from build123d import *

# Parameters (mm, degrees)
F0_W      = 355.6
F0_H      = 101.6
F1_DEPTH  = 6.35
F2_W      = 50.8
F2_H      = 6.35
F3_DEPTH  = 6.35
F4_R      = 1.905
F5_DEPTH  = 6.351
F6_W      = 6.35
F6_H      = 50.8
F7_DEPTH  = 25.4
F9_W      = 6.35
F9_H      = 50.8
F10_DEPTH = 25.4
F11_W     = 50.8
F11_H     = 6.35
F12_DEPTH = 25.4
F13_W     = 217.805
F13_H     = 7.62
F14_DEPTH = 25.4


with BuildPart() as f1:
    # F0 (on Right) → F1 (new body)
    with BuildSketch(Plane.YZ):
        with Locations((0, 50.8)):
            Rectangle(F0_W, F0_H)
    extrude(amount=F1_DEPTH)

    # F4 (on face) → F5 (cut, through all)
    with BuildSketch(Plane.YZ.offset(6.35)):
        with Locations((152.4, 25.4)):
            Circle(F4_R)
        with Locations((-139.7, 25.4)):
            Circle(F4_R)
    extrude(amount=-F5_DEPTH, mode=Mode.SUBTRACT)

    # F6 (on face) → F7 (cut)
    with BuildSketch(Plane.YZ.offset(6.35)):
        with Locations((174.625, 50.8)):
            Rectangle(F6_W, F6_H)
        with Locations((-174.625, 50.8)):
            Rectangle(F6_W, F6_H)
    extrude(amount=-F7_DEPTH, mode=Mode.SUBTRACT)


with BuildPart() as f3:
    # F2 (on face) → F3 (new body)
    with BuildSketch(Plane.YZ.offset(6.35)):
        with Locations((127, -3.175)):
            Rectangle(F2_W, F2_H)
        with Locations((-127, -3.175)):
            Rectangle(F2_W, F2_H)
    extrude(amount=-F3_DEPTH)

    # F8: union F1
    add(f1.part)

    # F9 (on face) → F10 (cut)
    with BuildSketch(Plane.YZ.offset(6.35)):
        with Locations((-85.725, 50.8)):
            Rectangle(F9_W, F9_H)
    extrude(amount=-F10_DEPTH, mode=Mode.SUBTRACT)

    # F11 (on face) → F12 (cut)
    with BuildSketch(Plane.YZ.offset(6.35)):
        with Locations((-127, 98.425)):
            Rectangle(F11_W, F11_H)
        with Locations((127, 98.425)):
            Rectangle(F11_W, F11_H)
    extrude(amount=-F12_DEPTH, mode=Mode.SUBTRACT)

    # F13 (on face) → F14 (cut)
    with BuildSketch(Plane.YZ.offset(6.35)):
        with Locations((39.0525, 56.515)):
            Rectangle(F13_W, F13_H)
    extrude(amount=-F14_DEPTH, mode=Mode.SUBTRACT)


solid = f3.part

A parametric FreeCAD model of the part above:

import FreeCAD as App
import Part
import Sketcher
Q = App.Units.Quantity


def add_polygon(sketch, points):
    """Adds a closed chain of lines whose ends are joined by coincident constraints."""
    first, n = sketch.GeometryCount, len(points)
    for a, b in zip(points, points[1:] + points[:1]):
        sketch.addGeometry(Part.LineSegment(App.Vector(*a, 0), App.Vector(*b, 0)), False)
    for i in range(n):
        sketch.addConstraint(Sketcher.Constraint("Coincident", first + i, 2, first + (i + 1) % n, 1))

doc = App.newDocument("Part")
params = doc.addObject("Spreadsheet::Sheet", "Params")
for row, (alias, value) in enumerate([
    ("sketch1_width", "14 in"),
    ("sketch1_height", "4 in"),
    ("pad1_length", "0.25 in"),
    ("sketch2_diameter", "0.15 in"),
    ("sketch3_height", "2 in"),
    ("sketch3_width", "0.25 in"),
    ("pocket2_length", "1 in"),
    ("sketch4_width", "2 in"),
    ("sketch4_height", "0.25 in"),
    ("pad2_length", "0.25 in"),
    ("sketch5_height", "2 in"),
    ("sketch5_width", "0.25 in"),
    ("pocket3_length", "1 in"),
    ("sketch6_width", "2 in"),
    ("sketch6_height", "0.25 in"),
    ("pocket4_length", "1 in"),
    ("sketch7_height", "0.3 in"),
    ("sketch7_width", "8.575 in"),
    ("pocket5_length", "1 in"),
], start=1):
    params.set(f"A{row}", alias)
    params.set(f"B{row}", "=" + value)
    params.setAlias(f"B{row}", alias)

body = doc.addObject("PartDesign::Body", "Body")

sketch1 = doc.addObject("Sketcher::SketchObject", "Sketch")
body.addObject(sketch1)
sketch1.AttachmentSupport = (doc.YZ_Plane, [""])
sketch1.MapMode = "FlatFace"
add_polygon(sketch1, [(-178, 102), (-178, 0), (178, 0), (178, 102)])
sketch1.addConstraint(Sketcher.Constraint("Vertical", 0))
sketch1.addConstraint(Sketcher.Constraint("Horizontal", 1))
sketch1.addConstraint(Sketcher.Constraint("Vertical", 2))
sketch1.addConstraint(Sketcher.Constraint("Horizontal", 3))
sketch1.addConstraint(Sketcher.Constraint("Symmetric", 0, 2, 1, 2, -1, 1))
sketch1.addConstraint(Sketcher.Constraint("DistanceX", 1, 1, 1, 2, Q("14 in")))
sketch1.addConstraint(Sketcher.Constraint("DistanceY", 0, 2, 0, 1, Q("4 in")))
sketch1.setExpression("Constraints[9]", "Params.sketch1_width")
sketch1.setExpression("Constraints[10]", "Params.sketch1_height")
pad1 = doc.addObject("PartDesign::Pad", "Pad")
body.addObject(pad1)
pad1.Profile = sketch1
pad1.setExpression("Length", "Params.pad1_length")

sketch2 = doc.addObject("Sketcher::SketchObject", "Sketch001")
body.addObject(sketch2)
sketch2.AttachmentSupport = (doc.YZ_Plane, [""])
sketch2.MapMode = "FlatFace"
sketch2.AttachmentOffset = App.Placement(App.Vector(0, 0, 0.25 * 25.4), App.Rotation())
sketch2.addGeometry(Part.Circle(App.Vector(152.4, 25.4, 0), App.Vector(0, 0, 1), 1.9), False)
sketch2.addGeometry(Part.Circle(App.Vector(-139.7, 25.4, 0), App.Vector(0, 0, 1), 1.9), False)
sketch2.addConstraint(Sketcher.Constraint("Equal", 0, 1))
sketch2.addConstraint(Sketcher.Constraint("Horizontal", 0, 3, 1, 3))
sketch2.addConstraint(Sketcher.Constraint("Diameter", 0, Q("0.15 in")))
sketch2.addConstraint(Sketcher.Constraint("DistanceX", -1, 1, 0, 3, Q("6 in")))
sketch2.addConstraint(Sketcher.Constraint("DistanceY", -1, 1, 0, 3, Q("1 in")))
sketch2.addConstraint(Sketcher.Constraint("DistanceX", 1, 3, -1, 1, Q("5.5 in")))
sketch2.setExpression("Constraints[2]", "Params.sketch2_diameter")
pocket1 = doc.addObject("PartDesign::Pocket", "Pocket")
body.addObject(pocket1)
pocket1.Profile = sketch2
pocket1.Type = "ThroughAll"

sketch3 = doc.addObject("Sketcher::SketchObject", "Sketch002")
body.addObject(sketch3)
sketch3.AttachmentSupport = (doc.YZ_Plane, [""])
sketch3.MapMode = "FlatFace"
sketch3.AttachmentOffset = App.Placement(App.Vector(0, 0, 0.25 * 25.4), App.Rotation())
add_polygon(sketch3, [(171, 76), (171, 25), (178, 25), (178, 76)])
add_polygon(sketch3, [(-178, 76), (-178, 25), (-171, 25), (-171, 76)])
sketch3.addConstraint(Sketcher.Constraint("Vertical", 0))
sketch3.addConstraint(Sketcher.Constraint("Horizontal", 1))
sketch3.addConstraint(Sketcher.Constraint("Vertical", 2))
sketch3.addConstraint(Sketcher.Constraint("Horizontal", 3))
sketch3.addConstraint(Sketcher.Constraint("Vertical", 4))
sketch3.addConstraint(Sketcher.Constraint("Horizontal", 5))
sketch3.addConstraint(Sketcher.Constraint("Vertical", 6))
sketch3.addConstraint(Sketcher.Constraint("Horizontal", 7))
sketch3.addConstraint(Sketcher.Constraint("Symmetric", 1, 2, 4, 2, -2))
sketch3.addConstraint(Sketcher.Constraint("Symmetric", 3, 2, 6, 2, -2))
sketch3.addConstraint(Sketcher.Constraint("DistanceY", 0, 2, 0, 1, Q("2 in")))
sketch3.addConstraint(Sketcher.Constraint("DistanceY", -1, 1, 0, 2, Q("1 in")))
sketch3.addConstraint(Sketcher.Constraint("DistanceX", -1, 1, 1, 2, Q("7 in")))
sketch3.addConstraint(Sketcher.Constraint("DistanceX", 1, 1, 1, 2, Q("0.25 in")))
sketch3.setExpression("Constraints[18]", "Params.sketch3_height")
sketch3.setExpression("Constraints[21]", "Params.sketch3_width")
pocket2 = doc.addObject("PartDesign::Pocket", "Pocket001")
body.addObject(pocket2)
pocket2.Profile = sketch3
pocket2.setExpression("Length", "Params.pocket2_length")
body2 = doc.addObject("PartDesign::Body", "Body001")
body2.AllowCompound = True

sketch4 = doc.addObject("Sketcher::SketchObject", "Sketch003")
body2.addObject(sketch4)
sketch4.AttachmentSupport = (doc.getObject("YZ_Plane001"), [""])
sketch4.MapMode = "FlatFace"
sketch4.AttachmentOffset = App.Placement(App.Vector(0, 0, 0.25 * 25.4), App.Rotation())
add_polygon(sketch4, [(102, 0), (102, -6), (152, -6), (152, 0)])
add_polygon(sketch4, [(-152, 0), (-152, -6), (-102, -6), (-102, 0)])
sketch4.addConstraint(Sketcher.Constraint("Vertical", 0))
sketch4.addConstraint(Sketcher.Constraint("Horizontal", 1))
sketch4.addConstraint(Sketcher.Constraint("Vertical", 2))
sketch4.addConstraint(Sketcher.Constraint("Horizontal", 3))
sketch4.addConstraint(Sketcher.Constraint("Vertical", 4))
sketch4.addConstraint(Sketcher.Constraint("Horizontal", 5))
sketch4.addConstraint(Sketcher.Constraint("Vertical", 6))
sketch4.addConstraint(Sketcher.Constraint("Horizontal", 7))
sketch4.addConstraint(Sketcher.Constraint("Symmetric", 3, 2, 6, 2, -1, 1))
sketch4.addConstraint(Sketcher.Constraint("Symmetric", 1, 2, 4, 2, -2))
sketch4.addConstraint(Sketcher.Constraint("PointOnObject", 2, 2, -1))
sketch4.addConstraint(Sketcher.Constraint("DistanceX", 1, 1, 1, 2, Q("2 in")))
sketch4.addConstraint(Sketcher.Constraint("DistanceX", -1, 1, 0, 2, Q("4 in")))
sketch4.addConstraint(Sketcher.Constraint("DistanceY", 0, 2, 0, 1, Q("0.25 in")))
sketch4.setExpression("Constraints[19]", "Params.sketch4_width")
sketch4.setExpression("Constraints[21]", "Params.sketch4_height")
pad2 = doc.addObject("PartDesign::Pad", "Pad001")
body2.addObject(pad2)
pad2.Profile = sketch4
pad2.setExpression("Length", "Params.pad2_length")
pad2.Reversed = True
doc.recompute()

boolean = doc.addObject("PartDesign::Boolean", "Boolean")
body2.addObject(boolean)
boolean.Type = "Fuse"
boolean.addObjects([body])

sketch5 = doc.addObject("Sketcher::SketchObject", "Sketch004")
body2.addObject(sketch5)
sketch5.AttachmentSupport = (doc.getObject("YZ_Plane001"), [""])
sketch5.MapMode = "FlatFace"
sketch5.AttachmentOffset = App.Placement(App.Vector(0, 0, 0.25 * 25.4), App.Rotation())
add_polygon(sketch5, [(-89, 76), (-89, 25), (-83, 25), (-83, 76)])
sketch5.addConstraint(Sketcher.Constraint("Vertical", 0))
sketch5.addConstraint(Sketcher.Constraint("Horizontal", 1))
sketch5.addConstraint(Sketcher.Constraint("Vertical", 2))
sketch5.addConstraint(Sketcher.Constraint("Horizontal", 3))
sketch5.addConstraint(Sketcher.Constraint("DistanceY", 0, 2, 0, 1, Q("2 in")))
sketch5.addConstraint(Sketcher.Constraint("DistanceY", -1, 1, 0, 2, Q("1 in")))
sketch5.addConstraint(Sketcher.Constraint("DistanceX", 1, 1, 1, 2, Q("0.25 in")))
sketch5.addConstraint(Sketcher.Constraint("DistanceX", 0, 2, -1, 1, Q("3.5 in")))
sketch5.setExpression("Constraints[8]", "Params.sketch5_height")
sketch5.setExpression("Constraints[10]", "Params.sketch5_width")
pocket3 = doc.addObject("PartDesign::Pocket", "Pocket002")
body2.addObject(pocket3)
pocket3.Profile = sketch5
pocket3.setExpression("Length", "Params.pocket3_length")

sketch6 = doc.addObject("Sketcher::SketchObject", "Sketch005")
body2.addObject(sketch6)
sketch6.AttachmentSupport = (doc.getObject("YZ_Plane001"), [""])
sketch6.MapMode = "FlatFace"
sketch6.AttachmentOffset = App.Placement(App.Vector(0, 0, 0.25 * 25.4), App.Rotation())
add_polygon(sketch6, [(-152, 102), (-152, 95), (-102, 95), (-102, 102)])
add_polygon(sketch6, [(102, 102), (102, 95), (152, 95), (152, 102)])
sketch6.addConstraint(Sketcher.Constraint("Vertical", 0))
sketch6.addConstraint(Sketcher.Constraint("Horizontal", 1))
sketch6.addConstraint(Sketcher.Constraint("Vertical", 2))
sketch6.addConstraint(Sketcher.Constraint("Horizontal", 3))
sketch6.addConstraint(Sketcher.Constraint("Vertical", 4))
sketch6.addConstraint(Sketcher.Constraint("Horizontal", 5))
sketch6.addConstraint(Sketcher.Constraint("Vertical", 6))
sketch6.addConstraint(Sketcher.Constraint("Horizontal", 7))
sketch6.addConstraint(Sketcher.Constraint("Symmetric", 1, 2, 4, 2, -2))
sketch6.addConstraint(Sketcher.Constraint("Symmetric", 3, 2, 6, 2, -2))
sketch6.addConstraint(Sketcher.Constraint("DistanceX", 1, 1, 1, 2, Q("2 in")))
sketch6.addConstraint(Sketcher.Constraint("DistanceX", 0, 2, -1, 1, Q("6 in")))
sketch6.addConstraint(Sketcher.Constraint("DistanceY", -1, 1, 2, 2, Q("4 in")))
sketch6.addConstraint(Sketcher.Constraint("DistanceY", 0, 2, 0, 1, Q("0.25 in")))
sketch6.setExpression("Constraints[18]", "Params.sketch6_width")
sketch6.setExpression("Constraints[21]", "Params.sketch6_height")
pocket4 = doc.addObject("PartDesign::Pocket", "Pocket003")
body2.addObject(pocket4)
pocket4.Profile = sketch6
pocket4.setExpression("Length", "Params.pocket4_length")

sketch7 = doc.addObject("Sketcher::SketchObject", "Sketch006")
body2.addObject(sketch7)
sketch7.AttachmentSupport = (doc.getObject("YZ_Plane001"), [""])
sketch7.MapMode = "FlatFace"
sketch7.AttachmentOffset = App.Placement(App.Vector(0, 0, 0.25 * 25.4), App.Rotation())
add_polygon(sketch7, [(-70, 60), (-70, 53), (148, 53), (148, 60)])
sketch7.addConstraint(Sketcher.Constraint("Vertical", 0))
sketch7.addConstraint(Sketcher.Constraint("Horizontal", 1))
sketch7.addConstraint(Sketcher.Constraint("Vertical", 2))
sketch7.addConstraint(Sketcher.Constraint("Horizontal", 3))
sketch7.addConstraint(Sketcher.Constraint("DistanceY", 0, 2, 0, 1, Q("0.3 in")))
sketch7.addConstraint(Sketcher.Constraint("DistanceX", 1, 1, 1, 2, Q("8.575 in")))
sketch7.addConstraint(Sketcher.Constraint("DistanceX", 0, 2, -1, 1, Q("2.75 in")))
sketch7.addConstraint(Sketcher.Constraint("DistanceY", -1, 1, 0, 2, Q("2.075 in")))
sketch7.setExpression("Constraints[8]", "Params.sketch7_height")
sketch7.setExpression("Constraints[9]", "Params.sketch7_width")
pocket5 = doc.addObject("PartDesign::Pocket", "Pocket004")
body2.addObject(pocket5)
pocket5.Profile = sketch7
pocket5.setExpression("Length", "Params.pocket5_length")

doc.recompute()
